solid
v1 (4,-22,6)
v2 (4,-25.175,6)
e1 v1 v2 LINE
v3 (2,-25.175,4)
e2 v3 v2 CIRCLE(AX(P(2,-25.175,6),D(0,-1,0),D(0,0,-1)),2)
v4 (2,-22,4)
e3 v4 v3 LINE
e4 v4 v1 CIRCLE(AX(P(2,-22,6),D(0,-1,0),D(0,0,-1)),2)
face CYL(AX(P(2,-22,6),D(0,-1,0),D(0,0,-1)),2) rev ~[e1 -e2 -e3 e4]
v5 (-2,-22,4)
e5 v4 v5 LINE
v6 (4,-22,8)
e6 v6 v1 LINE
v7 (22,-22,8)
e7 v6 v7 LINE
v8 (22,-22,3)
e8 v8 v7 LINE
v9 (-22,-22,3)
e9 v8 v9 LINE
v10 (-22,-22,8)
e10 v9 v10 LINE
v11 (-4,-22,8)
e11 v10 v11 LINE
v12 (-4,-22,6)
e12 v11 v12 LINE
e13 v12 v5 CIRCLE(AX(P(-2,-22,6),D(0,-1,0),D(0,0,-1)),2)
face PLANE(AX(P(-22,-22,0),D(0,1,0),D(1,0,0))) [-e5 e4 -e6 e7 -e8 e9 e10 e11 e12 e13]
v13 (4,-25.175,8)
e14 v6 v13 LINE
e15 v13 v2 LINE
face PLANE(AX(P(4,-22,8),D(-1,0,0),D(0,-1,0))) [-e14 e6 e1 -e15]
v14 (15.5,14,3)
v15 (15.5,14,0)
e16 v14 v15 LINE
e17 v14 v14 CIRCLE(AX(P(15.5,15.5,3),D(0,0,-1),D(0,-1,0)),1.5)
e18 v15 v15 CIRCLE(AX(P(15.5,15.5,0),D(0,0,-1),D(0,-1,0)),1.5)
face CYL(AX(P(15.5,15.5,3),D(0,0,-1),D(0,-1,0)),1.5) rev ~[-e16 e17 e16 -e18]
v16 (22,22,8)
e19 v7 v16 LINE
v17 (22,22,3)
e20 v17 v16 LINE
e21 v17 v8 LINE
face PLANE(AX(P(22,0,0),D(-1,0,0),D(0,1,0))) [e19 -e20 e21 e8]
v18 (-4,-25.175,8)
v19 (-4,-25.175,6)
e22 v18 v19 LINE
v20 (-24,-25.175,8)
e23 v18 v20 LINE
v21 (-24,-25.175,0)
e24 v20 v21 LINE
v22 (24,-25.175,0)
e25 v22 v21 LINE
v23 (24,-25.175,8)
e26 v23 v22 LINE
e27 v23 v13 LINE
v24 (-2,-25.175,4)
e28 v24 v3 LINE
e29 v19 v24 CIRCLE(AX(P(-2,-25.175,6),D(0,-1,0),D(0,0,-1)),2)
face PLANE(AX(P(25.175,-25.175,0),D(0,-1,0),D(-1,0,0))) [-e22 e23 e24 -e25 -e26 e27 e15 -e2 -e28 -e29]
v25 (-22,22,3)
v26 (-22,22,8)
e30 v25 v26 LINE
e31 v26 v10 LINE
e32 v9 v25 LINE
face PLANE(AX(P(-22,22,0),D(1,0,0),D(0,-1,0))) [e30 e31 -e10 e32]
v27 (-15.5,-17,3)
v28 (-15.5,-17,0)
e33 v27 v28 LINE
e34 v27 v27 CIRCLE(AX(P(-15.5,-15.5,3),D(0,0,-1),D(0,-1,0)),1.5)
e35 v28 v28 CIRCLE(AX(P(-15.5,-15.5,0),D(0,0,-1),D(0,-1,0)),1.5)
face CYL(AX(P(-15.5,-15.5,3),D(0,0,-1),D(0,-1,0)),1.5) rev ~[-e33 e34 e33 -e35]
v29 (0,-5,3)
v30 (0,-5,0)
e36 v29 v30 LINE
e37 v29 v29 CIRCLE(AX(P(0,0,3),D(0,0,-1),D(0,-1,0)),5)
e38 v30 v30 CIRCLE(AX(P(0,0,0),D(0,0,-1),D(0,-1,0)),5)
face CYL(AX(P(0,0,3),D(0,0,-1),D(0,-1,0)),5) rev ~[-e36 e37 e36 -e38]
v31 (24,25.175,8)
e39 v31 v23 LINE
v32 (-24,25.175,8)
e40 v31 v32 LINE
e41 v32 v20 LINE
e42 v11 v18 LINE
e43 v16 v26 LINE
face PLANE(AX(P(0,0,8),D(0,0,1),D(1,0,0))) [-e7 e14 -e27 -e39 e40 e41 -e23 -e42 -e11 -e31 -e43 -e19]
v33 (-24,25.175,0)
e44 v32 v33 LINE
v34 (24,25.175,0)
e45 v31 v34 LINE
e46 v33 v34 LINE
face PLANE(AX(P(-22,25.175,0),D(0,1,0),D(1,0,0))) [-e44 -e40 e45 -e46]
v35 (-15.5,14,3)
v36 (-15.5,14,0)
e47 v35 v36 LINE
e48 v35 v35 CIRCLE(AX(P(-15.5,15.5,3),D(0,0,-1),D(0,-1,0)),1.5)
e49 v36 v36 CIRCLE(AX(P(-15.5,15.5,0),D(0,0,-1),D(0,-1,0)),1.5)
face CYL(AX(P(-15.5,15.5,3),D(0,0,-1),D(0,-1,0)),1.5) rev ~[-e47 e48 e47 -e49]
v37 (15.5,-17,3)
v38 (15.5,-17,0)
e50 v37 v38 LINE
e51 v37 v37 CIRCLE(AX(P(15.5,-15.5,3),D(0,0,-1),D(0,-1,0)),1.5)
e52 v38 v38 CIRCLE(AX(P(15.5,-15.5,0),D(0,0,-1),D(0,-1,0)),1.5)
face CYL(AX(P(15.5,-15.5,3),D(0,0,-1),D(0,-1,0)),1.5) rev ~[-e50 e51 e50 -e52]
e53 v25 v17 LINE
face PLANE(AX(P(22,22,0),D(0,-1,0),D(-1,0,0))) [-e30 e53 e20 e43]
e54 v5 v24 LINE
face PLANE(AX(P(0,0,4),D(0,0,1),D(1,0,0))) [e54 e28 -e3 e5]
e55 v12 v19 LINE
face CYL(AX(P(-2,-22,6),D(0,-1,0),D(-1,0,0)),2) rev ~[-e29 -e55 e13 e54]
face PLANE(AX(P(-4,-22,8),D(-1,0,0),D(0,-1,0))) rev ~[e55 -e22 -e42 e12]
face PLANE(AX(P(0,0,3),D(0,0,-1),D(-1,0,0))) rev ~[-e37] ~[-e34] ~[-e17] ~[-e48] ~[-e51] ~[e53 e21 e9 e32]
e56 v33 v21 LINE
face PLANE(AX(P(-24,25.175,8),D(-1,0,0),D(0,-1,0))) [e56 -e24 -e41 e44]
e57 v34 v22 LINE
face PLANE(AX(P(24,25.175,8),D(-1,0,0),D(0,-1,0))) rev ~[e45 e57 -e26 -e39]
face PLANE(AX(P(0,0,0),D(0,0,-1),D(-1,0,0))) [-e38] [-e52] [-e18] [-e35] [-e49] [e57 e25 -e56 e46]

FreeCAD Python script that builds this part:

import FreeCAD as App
import Part
import Sketcher
Q = App.Units.Quantity


def edges_at(feature, points):
    """Names of the edges that pass closest to the given points."""
    edges = feature.Shape.Edges
    near = lambda p: min(range(len(edges)), key=lambda i: edges[i].distToShape(Part.Vertex(*p))[0])
    return sorted({f"Edge{near(p) + 1}" for p in points})


def add_polygon(sketch, points):
    """Adds a closed chain of lines whose ends are joined by coincident constraints."""
    first, n = sketch.GeometryCount, len(points)
    for a, b in zip(points, points[1:] + points[:1]):
        sketch.addGeometry(Part.LineSegment(App.Vector(*a, 0), App.Vector(*b, 0)), False)
    for i in range(n):
        sketch.addConstraint(Sketcher.Constraint("Coincident", first + i, 2, first + (i + 1) % n, 1))

doc = App.newDocument("Part")
body = doc.addObject("PartDesign::Body", "Body")

# Sketch on XY plane
sketch1 = body.newObject("Sketcher::SketchObject", "Sketch")
sketch1.AttachmentSupport = (doc.getObject("XY_Plane"), [""])
sketch1.MapMode = "FlatFace"
add_polygon(sketch1, [(25.175, 25.175), (-25.175, 25.175), (-25.175, -25.175), (25.175, -25.175)])  # lines 0-3
add_polygon(sketch1, [(22, 22), (22, -22), (-22, -22), (-22, 22)])  # lines 4-7
sketch1.addConstraint([
    Sketcher.Constraint("Horizontal", 0),
    Sketcher.Constraint("Vertical", 1),
    Sketcher.Constraint("Horizontal", 2),
    Sketcher.Constraint("Vertical", 3),
    Sketcher.Constraint("Vertical", 4),
    Sketcher.Constraint("Horizontal", 5),
    Sketcher.Constraint("Vertical", 6),
    Sketcher.Constraint("Horizontal", 7),
    Sketcher.Constraint("Symmetric", 0, 2, 2, 2, -1, 1),
    Sketcher.Constraint("Symmetric", 4, 2, 6, 2, -1, 1),
    Sketcher.Constraint("Equal", 2, 1),
    Sketcher.Constraint("Equal", 7, 4),
    Sketcher.Constraint("DistanceX", 5, 2, 5, 1, Q("44 mm")),
    Sketcher.Constraint("DistanceX", 4, 2, 2, 2, Q("3.175 mm")),
])
pad1 = body.newObject("PartDesign::Pad", "Pad")
pad1.Profile = sketch1
pad1.Length = 8

# Sketch on XY plane
sketch2 = body.newObject("Sketcher::SketchObject", "Sketch001")
sketch2.AttachmentSupport = (doc.getObject("XY_Plane"), [""])
sketch2.MapMode = "FlatFace"
add_polygon(sketch2, [(-22, -22), (-22, 22), (22, 22), (22, -22)])  # lines 0-3
sketch2.addConstraint([
    Sketcher.Constraint("Vertical", 0),
    Sketcher.Constraint("Horizontal", 1),
    Sketcher.Constraint("Vertical", 2),
    Sketcher.Constraint("Horizontal", 3),
    Sketcher.Constraint("Symmetric", 0, 2, 2, 2, -1, 1),
    Sketcher.Constraint("Equal", 3, 0),
    Sketcher.Constraint("DistanceX", 1, 1, 1, 2, Q("44 mm")),
])
pad2 = body.newObject("PartDesign::Pad", "Pad001")
pad2.Profile = sketch2
pad2.Length = 3

# Sketch on XY plane
sketch3 = body.newObject("Sketcher::SketchObject", "Sketch002")
sketch3.AttachmentSupport = (doc.getObject("XY_Plane"), [""])
sketch3.MapMode = "FlatFace"
sketch3.AttachmentOffset = App.Placement(App.Vector(0, 0, 3), App.Rotation())
sketch3.addGeometry(Part.Circle(App.Vector(0, 0, 0), App.Vector(0, 0, 1), 5), False)
sketch3.addConstraint([
    Sketcher.Constraint("Coincident", 0, 3, -1, 1),
    Sketcher.Constraint("Diameter", 0, Q("10 mm")),
])
doc.recompute()
hole = body.newObject("PartDesign::Hole", "Hole")
hole.Profile = sketch3
hole.ThreadType = "None"
hole.Diameter = 10
hole.DepthType = "ThroughAll"

# Sketch on XY plane
sketch4 = body.newObject("Sketcher::SketchObject", "Sketch003")
sketch4.AttachmentSupport = (doc.getObject("XY_Plane"), [""])
sketch4.MapMode = "FlatFace"
sketch4.AttachmentOffset = App.Placement(App.Vector(0, 0, 3), App.Rotation())
sketch4.addGeometry([
    Part.Circle(App.Vector(-15.5, 15.5, 0), App.Vector(0, 0, 1), 1.5),
    Part.Circle(App.Vector(15.5, 15.5, 0), App.Vector(0, 0, 1), 1.5),
    Part.Circle(App.Vector(15.5, -15.5, 0), App.Vector(0, 0, 1), 1.5),
    Part.Circle(App.Vector(-15.5, -15.5, 0), App.Vector(0, 0, 1), 1.5),
], False)
sketch4.addConstraint([
    Sketcher.Constraint("Equal", 0, 1),
    Sketcher.Constraint("Equal", 1, 2),
    Sketcher.Constraint("Equal", 2, 3),
    Sketcher.Constraint("Symmetric", 0, 3, 2, 3, -1, 1),
    Sketcher.Constraint("Symmetric", 1, 3, 3, 3, -1, 1),
    Sketcher.Constraint("Symmetric", 0, 3, 1, 3, -2),
    Sketcher.Constraint("Diameter", 0, Q("3 mm")),
    Sketcher.Constraint("DistanceX", 0, 3, 1, 3, Q("31 mm")),
    Sketcher.Constraint("DistanceY", 2, 3, 1, 3, Q("31 mm")),
])
doc.recompute()
hole2 = body.newObject("PartDesign::Hole", "Hole001")
hole2.Profile = sketch4
hole2.ThreadType = "None"
hole2.Diameter = 3
hole2.DepthType = "ThroughAll"

# Sketch on XY plane
sketch5 = body.newObject("Sketcher::SketchObject", "Sketch004")
sketch5.AttachmentSupport = (doc.getObject("XY_Plane"), [""])
sketch5.MapMode = "FlatFace"
sketch5.AttachmentOffset = App.Placement(App.Vector(0, 0, 8), App.Rotation())
add_polygon(sketch5, [(24, 25.175), (24, -25.175), (25.175, -25.175), (25.175, 25.175)])  # lines 0-3
add_polygon(sketch5, [(-25.175, -25.175), (-24, -25.175), (-24, 25.175), (-25.175, 25.175)])  # lines 4-7
sketch5.addConstraint([
    Sketcher.Constraint("Vertical", 0),
    Sketcher.Constraint("Horizontal", 1),
    Sketcher.Constraint("Vertical", 2),
    Sketcher.Constraint("Horizontal", 3),
    Sketcher.Constraint("Horizontal", 4),
    Sketcher.Constraint("Vertical", 5),
    Sketcher.Constraint("Horizontal", 6),
    Sketcher.Constraint("Vertical", 7),
    Sketcher.Constraint("Symmetric", 3, 2, 4, 2, -1, 1),
    Sketcher.Constraint("Symmetric", 1, 2, 6, 2, -1, 1),
    Sketcher.Constraint("Horizontal", 1, 2, 4, 2),
    Sketcher.Constraint("DistanceX", -1, 1, 0, 2, Q("24 mm")),
    Sketcher.Constraint("DistanceY", 0, 2, 0, 1, Q("50.35 mm")),
    Sketcher.Constraint("DistanceX", 1, 1, 1, 2, Q("1.175 mm")),
])
pocket1 = body.newObject("PartDesign::Pocket", "Pocket")
pocket1.Profile = sketch5
pocket1.Length = 8

# Sketch on XY plane
sketch6 = body.newObject("Sketcher::SketchObject", "Sketch005")
sketch6.AttachmentSupport = (doc.getObject("XY_Plane"), [""])
sketch6.MapMode = "FlatFace"
sketch6.AttachmentOffset = App.Placement(App.Vector(0, 0, 8), App.Rotation())
add_polygon(sketch6, [(4, -25.175), (4, -22), (-4, -22), (-4, -25.175)])  # lines 0-3
sketch6.addConstraint([
    Sketcher.Constraint("Vertical", 0),
    Sketcher.Constraint("Horizontal", 1),
    Sketcher.Constraint("Vertical", 2),
    Sketcher.Constraint("Horizontal", 3),
    Sketcher.Constraint("DistanceX", -1, 1, 0, 2, Q("4 mm")),
    Sketcher.Constraint("DistanceX", 1, 2, -1, 1, Q("4 mm")),
    Sketcher.Constraint("DistanceY", 0, 2, -1, 1, Q("22 mm")),
    Sketcher.Constraint("DistanceY", 0, 1, 0, 2, Q("3.175 mm")),
])
pocket2 = body.newObject("PartDesign::Pocket", "Pocket001")
pocket2.Profile = sketch6
pocket2.Length = 4
doc.recompute()

fillet = body.newObject("PartDesign::Fillet", "Fillet")
fillet.Base = (pocket2, edges_at(pocket2, [(-4, -23.587, 4), (4, -23.587, 4)]))
fillet.Radius = 2

doc.recompute()
